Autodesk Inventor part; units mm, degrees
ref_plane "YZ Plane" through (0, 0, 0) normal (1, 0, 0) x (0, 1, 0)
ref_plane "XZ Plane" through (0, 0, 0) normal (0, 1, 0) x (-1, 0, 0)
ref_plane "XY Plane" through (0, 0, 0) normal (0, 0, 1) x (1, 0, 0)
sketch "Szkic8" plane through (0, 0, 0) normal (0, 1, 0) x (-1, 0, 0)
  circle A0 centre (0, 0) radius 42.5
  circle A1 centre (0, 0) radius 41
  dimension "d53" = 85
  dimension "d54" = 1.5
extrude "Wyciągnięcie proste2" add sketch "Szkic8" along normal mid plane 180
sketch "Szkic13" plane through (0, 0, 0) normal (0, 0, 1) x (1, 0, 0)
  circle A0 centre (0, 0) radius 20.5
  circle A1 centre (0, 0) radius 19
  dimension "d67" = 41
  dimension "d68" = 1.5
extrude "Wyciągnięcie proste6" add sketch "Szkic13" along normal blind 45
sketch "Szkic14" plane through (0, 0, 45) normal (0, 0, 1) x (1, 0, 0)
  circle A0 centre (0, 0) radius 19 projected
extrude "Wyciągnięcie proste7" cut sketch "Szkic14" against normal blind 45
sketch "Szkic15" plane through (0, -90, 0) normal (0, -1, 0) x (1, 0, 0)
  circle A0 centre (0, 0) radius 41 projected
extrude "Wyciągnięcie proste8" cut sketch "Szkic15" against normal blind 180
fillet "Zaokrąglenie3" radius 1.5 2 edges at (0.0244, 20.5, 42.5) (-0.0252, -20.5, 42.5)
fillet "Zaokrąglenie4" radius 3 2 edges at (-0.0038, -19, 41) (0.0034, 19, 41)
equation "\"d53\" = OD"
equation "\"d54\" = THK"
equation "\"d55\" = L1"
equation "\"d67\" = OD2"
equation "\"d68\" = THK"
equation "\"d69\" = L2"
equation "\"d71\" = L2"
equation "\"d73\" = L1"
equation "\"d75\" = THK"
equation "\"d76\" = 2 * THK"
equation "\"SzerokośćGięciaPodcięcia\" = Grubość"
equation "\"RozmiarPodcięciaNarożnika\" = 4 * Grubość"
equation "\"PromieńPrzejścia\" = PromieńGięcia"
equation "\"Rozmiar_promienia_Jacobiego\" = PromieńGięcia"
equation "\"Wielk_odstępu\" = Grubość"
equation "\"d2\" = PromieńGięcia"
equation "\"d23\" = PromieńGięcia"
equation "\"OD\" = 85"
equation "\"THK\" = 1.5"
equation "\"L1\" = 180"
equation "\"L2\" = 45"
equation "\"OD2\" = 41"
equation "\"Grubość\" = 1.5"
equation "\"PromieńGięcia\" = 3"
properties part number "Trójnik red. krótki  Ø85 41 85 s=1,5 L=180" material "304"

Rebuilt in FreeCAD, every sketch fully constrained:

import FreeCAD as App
import Part
import Sketcher

V = App.Vector


def edges_at(feature, points):
    """Names of the edges that pass closest to the given points."""
    edges = feature.Shape.Edges
    near = lambda p: min(range(len(edges)), key=lambda i: edges[i].distToShape(Part.Vertex(*p))[0])
    return sorted({f"Edge{near(p) + 1}" for p in points})

doc = App.newDocument("Part")
body = doc.addObject("PartDesign::Body", "Body")

# Sketch on XZ plane
sketch1 = body.newObject("Sketcher::SketchObject", "Sketch")
sketch1.AttachmentSupport = (doc.getObject("XZ_Plane"), [""])
sketch1.MapMode = "FlatFace"
sketch1.addGeometry(Part.Circle(V(0, 0, 0), V(0, 0, 1), 42), False)
sketch1.addGeometry(Part.Circle(V(0, 0, 0), V(0, 0, 1), 41), False)
sketch1.addConstraint(Sketcher.Constraint("Coincident", 0, 3, -1, 1))
sketch1.addConstraint(Sketcher.Constraint("Coincident", 1, 3, -1, 1))
sketch1.addConstraint(Sketcher.Constraint("Diameter", 0, 85.0))
sketch1.addConstraint(Sketcher.Constraint("Diameter", 1, 82.0))
pad1 = body.newObject("PartDesign::Pad", "Pad")
pad1.Profile = sketch1
pad1.Length = 180
pad1.Midplane = True

# Sketch on XY plane
sketch2 = body.newObject("Sketcher::SketchObject", "Sketch001")
sketch2.AttachmentSupport = (doc.getObject("XY_Plane"), [""])
sketch2.MapMode = "FlatFace"
sketch2.addGeometry(Part.Circle(V(0, 0, 0), V(0, 0, 1), 20), False)
sketch2.addGeometry(Part.Circle(V(0, 0, 0), V(0, 0, 1), 19), False)
sketch2.addConstraint(Sketcher.Constraint("Coincident", 0, 3, -1, 1))
sketch2.addConstraint(Sketcher.Constraint("Coincident", 1, 3, -1, 1))
sketch2.addConstraint(Sketcher.Constraint("Diameter", 0, 41.0))
sketch2.addConstraint(Sketcher.Constraint("Diameter", 1, 38.0))
pad2 = body.newObject("PartDesign::Pad", "Pad001")
pad2.Profile = sketch2
pad2.Length = 45

# Sketch on XY plane
sketch3 = body.newObject("Sketcher::SketchObject", "Sketch002")
sketch3.AttachmentSupport = (doc.getObject("XY_Plane"), [""])
sketch3.MapMode = "FlatFace"
sketch3.AttachmentOffset = App.Placement(V(0, 0, 45), App.Rotation())
sketch3.addGeometry(Part.Circle(V(0, 0, 0), V(0, 0, 1), 19), False)
sketch3.addConstraint(Sketcher.Constraint("Coincident", 0, 3, -1, 1))
sketch3.addConstraint(Sketcher.Constraint("Diameter", 0, 38.0))
pocket1 = body.newObject("PartDesign::Pocket", "Pocket")
pocket1.Profile = sketch3
pocket1.Length = 45

# Sketch on XZ plane
sketch4 = body.newObject("Sketcher::SketchObject", "Sketch003")
sketch4.AttachmentSupport = (doc.getObject("XZ_Plane"), [""])
sketch4.MapMode = "FlatFace"
sketch4.AttachmentOffset = App.Placement(V(0, 0, 90), App.Rotation())
sketch4.addGeometry(Part.Circle(V(0, 0, 0), V(0, 0, 1), 41), False)
sketch4.addConstraint(Sketcher.Constraint("Coincident", 0, 3, -1, 1))
sketch4.addConstraint(Sketcher.Constraint("Diameter", 0, 82.0))
pocket2 = body.newObject("PartDesign::Pocket", "Pocket001")
pocket2.Profile = sketch4
pocket2.Length = 180
doc.recompute()

fillet = body.newObject("PartDesign::Fillet", "Fillet")
fillet.Base = (pocket2, edges_at(pocket2, [(0.024, 20.5, 42.5), (-0.025, -20.5, 42.5)]))
fillet.Radius = 1.5
doc.recompute()

fillet2 = body.newObject("PartDesign::Fillet", "Fillet001")
fillet2.Base = (fillet, edges_at(fillet, [(-0.004, -19, 41), (0.003, 19, 41)]))
fillet2.Radius = 3

doc.recompute()
